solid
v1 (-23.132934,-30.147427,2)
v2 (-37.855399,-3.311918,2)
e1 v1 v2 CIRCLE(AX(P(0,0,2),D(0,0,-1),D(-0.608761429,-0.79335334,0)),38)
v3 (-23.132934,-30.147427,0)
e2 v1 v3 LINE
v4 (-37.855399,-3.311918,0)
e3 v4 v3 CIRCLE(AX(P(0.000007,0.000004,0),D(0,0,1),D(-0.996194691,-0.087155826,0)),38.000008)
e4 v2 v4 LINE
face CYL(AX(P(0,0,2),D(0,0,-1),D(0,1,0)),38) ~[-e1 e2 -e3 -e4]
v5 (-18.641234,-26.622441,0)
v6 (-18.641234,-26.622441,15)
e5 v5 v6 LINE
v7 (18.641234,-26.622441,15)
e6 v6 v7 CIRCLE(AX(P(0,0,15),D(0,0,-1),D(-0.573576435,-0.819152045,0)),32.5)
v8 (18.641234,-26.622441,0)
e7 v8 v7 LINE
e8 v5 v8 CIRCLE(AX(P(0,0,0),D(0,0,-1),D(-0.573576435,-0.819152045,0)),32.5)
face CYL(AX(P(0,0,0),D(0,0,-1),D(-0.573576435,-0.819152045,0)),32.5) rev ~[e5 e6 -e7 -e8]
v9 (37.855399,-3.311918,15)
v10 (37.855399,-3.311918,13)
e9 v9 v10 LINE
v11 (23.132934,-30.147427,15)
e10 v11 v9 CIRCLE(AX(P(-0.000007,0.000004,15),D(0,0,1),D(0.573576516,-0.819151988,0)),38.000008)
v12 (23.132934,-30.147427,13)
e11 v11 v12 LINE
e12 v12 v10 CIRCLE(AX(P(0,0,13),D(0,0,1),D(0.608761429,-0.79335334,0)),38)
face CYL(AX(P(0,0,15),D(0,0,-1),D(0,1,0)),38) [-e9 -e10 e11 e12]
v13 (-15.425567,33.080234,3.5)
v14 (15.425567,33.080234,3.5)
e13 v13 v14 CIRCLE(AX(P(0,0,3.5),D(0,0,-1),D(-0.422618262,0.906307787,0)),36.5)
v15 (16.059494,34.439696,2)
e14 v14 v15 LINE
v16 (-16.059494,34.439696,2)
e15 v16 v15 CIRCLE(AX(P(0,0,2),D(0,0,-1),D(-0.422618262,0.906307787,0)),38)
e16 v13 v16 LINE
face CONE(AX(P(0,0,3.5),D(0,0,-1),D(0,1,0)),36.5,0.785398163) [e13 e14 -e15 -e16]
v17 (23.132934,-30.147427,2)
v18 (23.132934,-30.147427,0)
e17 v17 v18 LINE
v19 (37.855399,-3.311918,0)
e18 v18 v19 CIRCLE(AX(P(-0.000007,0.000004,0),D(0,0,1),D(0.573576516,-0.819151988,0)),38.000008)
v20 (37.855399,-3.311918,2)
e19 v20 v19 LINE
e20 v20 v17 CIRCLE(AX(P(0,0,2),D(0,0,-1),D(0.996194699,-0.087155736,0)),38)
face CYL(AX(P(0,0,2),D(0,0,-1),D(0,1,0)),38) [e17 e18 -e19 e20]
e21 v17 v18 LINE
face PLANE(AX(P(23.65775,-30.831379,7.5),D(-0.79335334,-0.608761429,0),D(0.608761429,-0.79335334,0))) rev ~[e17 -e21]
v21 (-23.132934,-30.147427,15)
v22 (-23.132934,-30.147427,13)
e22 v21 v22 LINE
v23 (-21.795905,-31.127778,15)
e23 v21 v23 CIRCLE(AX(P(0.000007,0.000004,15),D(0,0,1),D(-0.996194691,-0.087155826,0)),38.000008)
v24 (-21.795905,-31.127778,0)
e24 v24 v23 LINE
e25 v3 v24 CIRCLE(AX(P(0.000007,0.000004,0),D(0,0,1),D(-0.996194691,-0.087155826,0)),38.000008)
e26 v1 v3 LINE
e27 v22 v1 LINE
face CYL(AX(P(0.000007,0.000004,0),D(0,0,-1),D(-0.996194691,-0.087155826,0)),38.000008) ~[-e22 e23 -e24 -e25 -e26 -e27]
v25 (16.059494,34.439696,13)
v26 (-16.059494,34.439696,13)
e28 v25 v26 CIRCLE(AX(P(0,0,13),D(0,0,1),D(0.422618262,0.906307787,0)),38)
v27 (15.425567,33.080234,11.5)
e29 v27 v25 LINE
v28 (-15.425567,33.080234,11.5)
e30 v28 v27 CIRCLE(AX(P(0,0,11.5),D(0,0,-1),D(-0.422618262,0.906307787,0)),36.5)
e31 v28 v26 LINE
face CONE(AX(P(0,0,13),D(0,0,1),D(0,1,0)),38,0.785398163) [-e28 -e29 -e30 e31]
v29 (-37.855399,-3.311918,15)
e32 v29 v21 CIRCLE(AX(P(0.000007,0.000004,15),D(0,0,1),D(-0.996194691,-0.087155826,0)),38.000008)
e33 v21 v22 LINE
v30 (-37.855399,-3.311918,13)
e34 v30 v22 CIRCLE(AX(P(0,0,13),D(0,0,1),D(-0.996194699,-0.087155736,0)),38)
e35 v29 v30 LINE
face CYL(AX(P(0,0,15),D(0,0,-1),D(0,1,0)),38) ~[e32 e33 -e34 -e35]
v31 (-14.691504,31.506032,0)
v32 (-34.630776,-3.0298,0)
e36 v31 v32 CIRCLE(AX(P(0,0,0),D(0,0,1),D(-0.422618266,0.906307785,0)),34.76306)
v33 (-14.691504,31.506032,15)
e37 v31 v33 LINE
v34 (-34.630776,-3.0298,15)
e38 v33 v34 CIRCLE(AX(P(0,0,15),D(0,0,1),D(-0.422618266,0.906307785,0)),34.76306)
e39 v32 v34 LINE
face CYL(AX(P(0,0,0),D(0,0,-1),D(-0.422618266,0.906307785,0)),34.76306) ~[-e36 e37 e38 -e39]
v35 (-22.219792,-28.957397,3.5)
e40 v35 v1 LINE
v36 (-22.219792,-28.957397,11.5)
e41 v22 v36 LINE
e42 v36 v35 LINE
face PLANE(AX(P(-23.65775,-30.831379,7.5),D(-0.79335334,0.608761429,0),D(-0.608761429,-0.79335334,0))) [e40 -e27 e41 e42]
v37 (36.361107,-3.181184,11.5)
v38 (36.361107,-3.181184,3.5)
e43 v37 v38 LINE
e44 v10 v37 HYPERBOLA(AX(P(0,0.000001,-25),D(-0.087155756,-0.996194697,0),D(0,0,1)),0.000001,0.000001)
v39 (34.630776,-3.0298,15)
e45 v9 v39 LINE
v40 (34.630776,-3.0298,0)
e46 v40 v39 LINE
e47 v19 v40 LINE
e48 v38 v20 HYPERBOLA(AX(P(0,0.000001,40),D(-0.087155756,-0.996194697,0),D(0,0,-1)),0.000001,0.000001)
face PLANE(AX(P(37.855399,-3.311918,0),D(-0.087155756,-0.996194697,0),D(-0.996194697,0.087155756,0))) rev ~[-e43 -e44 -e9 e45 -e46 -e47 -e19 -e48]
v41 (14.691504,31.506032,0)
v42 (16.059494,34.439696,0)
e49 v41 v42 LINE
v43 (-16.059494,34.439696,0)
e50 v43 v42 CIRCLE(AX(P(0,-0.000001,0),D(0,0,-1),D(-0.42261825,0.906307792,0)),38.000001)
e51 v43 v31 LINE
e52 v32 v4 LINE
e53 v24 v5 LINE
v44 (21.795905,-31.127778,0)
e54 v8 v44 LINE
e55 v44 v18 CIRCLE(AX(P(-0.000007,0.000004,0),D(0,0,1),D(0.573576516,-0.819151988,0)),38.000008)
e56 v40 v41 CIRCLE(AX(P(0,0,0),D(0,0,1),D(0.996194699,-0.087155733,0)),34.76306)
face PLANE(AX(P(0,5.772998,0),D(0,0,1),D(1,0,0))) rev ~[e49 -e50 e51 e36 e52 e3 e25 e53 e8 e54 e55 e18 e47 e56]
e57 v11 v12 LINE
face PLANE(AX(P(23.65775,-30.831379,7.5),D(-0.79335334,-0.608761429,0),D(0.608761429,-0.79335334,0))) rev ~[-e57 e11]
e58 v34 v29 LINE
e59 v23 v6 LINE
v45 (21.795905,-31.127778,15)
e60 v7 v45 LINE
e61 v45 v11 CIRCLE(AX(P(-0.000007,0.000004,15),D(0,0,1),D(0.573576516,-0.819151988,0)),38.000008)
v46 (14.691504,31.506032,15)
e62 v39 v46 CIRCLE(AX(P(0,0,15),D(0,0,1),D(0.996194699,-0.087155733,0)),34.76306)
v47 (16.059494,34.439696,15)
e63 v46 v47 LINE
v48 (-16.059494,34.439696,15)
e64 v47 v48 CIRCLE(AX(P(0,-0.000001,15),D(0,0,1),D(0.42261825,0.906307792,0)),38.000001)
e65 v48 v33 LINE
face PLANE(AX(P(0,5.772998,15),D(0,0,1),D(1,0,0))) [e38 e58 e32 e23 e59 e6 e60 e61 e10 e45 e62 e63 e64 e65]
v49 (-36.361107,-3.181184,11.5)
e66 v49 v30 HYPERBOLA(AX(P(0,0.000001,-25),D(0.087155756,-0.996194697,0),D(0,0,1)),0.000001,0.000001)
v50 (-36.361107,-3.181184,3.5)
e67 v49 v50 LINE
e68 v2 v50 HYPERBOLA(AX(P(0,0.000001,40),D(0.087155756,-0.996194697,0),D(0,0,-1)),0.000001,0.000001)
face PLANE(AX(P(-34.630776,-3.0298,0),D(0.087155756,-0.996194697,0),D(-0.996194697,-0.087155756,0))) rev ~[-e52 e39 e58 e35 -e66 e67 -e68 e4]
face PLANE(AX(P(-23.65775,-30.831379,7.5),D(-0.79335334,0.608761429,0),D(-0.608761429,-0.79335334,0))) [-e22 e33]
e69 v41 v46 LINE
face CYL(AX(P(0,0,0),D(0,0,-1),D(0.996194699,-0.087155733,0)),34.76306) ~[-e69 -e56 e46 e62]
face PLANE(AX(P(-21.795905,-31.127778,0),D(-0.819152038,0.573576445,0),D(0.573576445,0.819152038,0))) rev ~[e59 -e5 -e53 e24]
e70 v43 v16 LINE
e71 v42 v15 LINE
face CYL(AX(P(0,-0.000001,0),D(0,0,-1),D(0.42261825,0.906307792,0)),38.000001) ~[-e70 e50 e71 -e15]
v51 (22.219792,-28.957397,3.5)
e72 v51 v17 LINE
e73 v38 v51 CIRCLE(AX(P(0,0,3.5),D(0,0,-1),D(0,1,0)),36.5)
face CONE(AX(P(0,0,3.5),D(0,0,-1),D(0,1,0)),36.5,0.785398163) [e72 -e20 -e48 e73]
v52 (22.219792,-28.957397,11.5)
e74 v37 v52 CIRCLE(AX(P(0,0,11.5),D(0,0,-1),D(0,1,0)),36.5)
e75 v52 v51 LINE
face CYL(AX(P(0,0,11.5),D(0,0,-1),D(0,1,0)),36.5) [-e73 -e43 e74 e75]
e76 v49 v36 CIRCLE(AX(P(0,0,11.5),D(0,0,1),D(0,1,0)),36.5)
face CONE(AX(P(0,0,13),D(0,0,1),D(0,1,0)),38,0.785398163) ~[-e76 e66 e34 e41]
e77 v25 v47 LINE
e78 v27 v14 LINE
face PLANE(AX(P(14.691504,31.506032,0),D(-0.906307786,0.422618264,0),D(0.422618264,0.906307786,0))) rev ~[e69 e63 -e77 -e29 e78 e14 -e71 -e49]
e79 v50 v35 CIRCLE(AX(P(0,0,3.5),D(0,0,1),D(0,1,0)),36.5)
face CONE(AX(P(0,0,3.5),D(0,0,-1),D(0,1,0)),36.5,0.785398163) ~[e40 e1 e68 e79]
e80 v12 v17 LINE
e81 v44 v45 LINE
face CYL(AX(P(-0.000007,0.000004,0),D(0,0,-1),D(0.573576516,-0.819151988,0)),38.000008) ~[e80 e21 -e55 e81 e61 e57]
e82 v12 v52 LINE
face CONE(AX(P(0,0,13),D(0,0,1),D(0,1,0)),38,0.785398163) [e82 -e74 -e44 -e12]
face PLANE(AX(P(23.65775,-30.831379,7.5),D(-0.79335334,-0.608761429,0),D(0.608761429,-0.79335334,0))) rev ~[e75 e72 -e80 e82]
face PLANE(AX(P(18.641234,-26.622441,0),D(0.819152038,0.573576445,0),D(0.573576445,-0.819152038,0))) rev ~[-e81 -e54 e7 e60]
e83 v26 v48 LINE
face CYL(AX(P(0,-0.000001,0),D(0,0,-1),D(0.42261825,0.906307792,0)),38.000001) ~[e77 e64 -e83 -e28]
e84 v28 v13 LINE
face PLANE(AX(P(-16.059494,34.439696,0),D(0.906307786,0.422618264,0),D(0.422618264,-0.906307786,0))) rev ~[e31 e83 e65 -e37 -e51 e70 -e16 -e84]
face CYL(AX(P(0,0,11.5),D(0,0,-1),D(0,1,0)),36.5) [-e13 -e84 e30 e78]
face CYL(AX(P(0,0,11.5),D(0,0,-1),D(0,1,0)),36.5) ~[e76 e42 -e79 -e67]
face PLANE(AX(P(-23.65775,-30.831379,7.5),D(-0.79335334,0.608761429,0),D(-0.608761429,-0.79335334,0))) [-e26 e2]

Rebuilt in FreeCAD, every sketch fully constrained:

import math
import FreeCAD as App
import Part
import Sketcher
Q = App.Units.Quantity


def add_polygon(sketch, points):
    """Adds a closed chain of lines whose ends are joined by coincident constraints."""
    first, n = sketch.GeometryCount, len(points)
    for a, b in zip(points, points[1:] + points[:1]):
        sketch.addGeometry(Part.LineSegment(App.Vector(*a, 0), App.Vector(*b, 0)), False)
    for i in range(n):
        sketch.addConstraint(Sketcher.Constraint("Coincident", first + i, 2, first + (i + 1) % n, 1))

doc = App.newDocument("Part")
body = doc.addObject("PartDesign::Body", "Body")

# Sketch on XY plane
sketch1 = doc.addObject("Sketcher::SketchObject", "Sketch")
body.addObject(sketch1)
sketch1.AttachmentSupport = (doc.XY_Plane, [""])
sketch1.MapMode = "FlatFace"
sketch1.addGeometry(Part.LineSegment(App.Vector(18.6, -26.6, 0), App.Vector(21.8, -31.1, 0)), False)
sketch1.addGeometry(Part.ArcOfCircle(Part.Circle(App.Vector(0, 0, 0), App.Vector(0, 0, 1), 38), math.radians(-55), math.radians(-5)), False)
sketch1.addGeometry(Part.LineSegment(App.Vector(37.9, -3.3, 0), App.Vector(34.6, -3, 0)), False)
sketch1.addGeometry(Part.ArcOfCircle(Part.Circle(App.Vector(0, 0, 0), App.Vector(0, 0, 1), 34.8), math.radians(-5), math.radians(65)), False)
sketch1.addGeometry(Part.LineSegment(App.Vector(14.7, 31.5, 0), App.Vector(16.1, 34.4, 0)), False)
sketch1.addGeometry(Part.ArcOfCircle(Part.Circle(App.Vector(0, 0, 0), App.Vector(0, 0, 1), 38), math.radians(65), math.radians(115)), False)
sketch1.addGeometry(Part.LineSegment(App.Vector(-16.1, 34.4, 0), App.Vector(-14.7, 31.5, 0)), False)
sketch1.addGeometry(Part.ArcOfCircle(Part.Circle(App.Vector(0, 0, 0), App.Vector(0, 0, 1), 34.8), math.radians(115), math.radians(185)), False)
sketch1.addGeometry(Part.LineSegment(App.Vector(-34.6, -3, 0), App.Vector(-37.9, -3.3, 0)), False)
sketch1.addGeometry(Part.ArcOfCircle(Part.Circle(App.Vector(0, 0, 0), App.Vector(0, 0, 1), 38), math.radians(-175), math.radians(-125)), False)
sketch1.addGeometry(Part.LineSegment(App.Vector(-21.8, -31.1, 0), App.Vector(-18.6, -26.6, 0)), False)
sketch1.addGeometry(Part.ArcOfCircle(Part.Circle(App.Vector(0, 0, 0), App.Vector(0, 0, 1), 32.5), math.radians(-55), math.radians(235)), False)
sketch1.addConstraint(Sketcher.Constraint("Coincident", 0, 2, 1, 1))
sketch1.addConstraint(Sketcher.Constraint("Coincident", 1, 2, 2, 1))
sketch1.addConstraint(Sketcher.Constraint("Coincident", 2, 2, 3, 1))
sketch1.addConstraint(Sketcher.Constraint("Coincident", 3, 2, 4, 1))
sketch1.addConstraint(Sketcher.Constraint("Coincident", 4, 2, 5, 1))
sketch1.addConstraint(Sketcher.Constraint("Coincident", 5, 2, 6, 1))
sketch1.addConstraint(Sketcher.Constraint("Coincident", 6, 2, 7, 1))
sketch1.addConstraint(Sketcher.Constraint("Coincident", 7, 2, 8, 1))
sketch1.addConstraint(Sketcher.Constraint("Coincident", 8, 2, 9, 1))
sketch1.addConstraint(Sketcher.Constraint("Coincident", 9, 2, 10, 1))
sketch1.addConstraint(Sketcher.Constraint("Coincident", 10, 2, 11, 2))
sketch1.addConstraint(Sketcher.Constraint("Coincident", 11, 1, 0, 1))
sketch1.addConstraint(Sketcher.Constraint("Coincident", 1, 3, -1, 1))
sketch1.addConstraint(Sketcher.Constraint("Coincident", 3, 3, -1, 1))
sketch1.addConstraint(Sketcher.Constraint("Coincident", 5, 3, -1, 1))
sketch1.addConstraint(Sketcher.Constraint("Coincident", 7, 3, -1, 1))
sketch1.addConstraint(Sketcher.Constraint("Coincident", 9, 3, -1, 1))
sketch1.addConstraint(Sketcher.Constraint("Coincident", 11, 3, -1, 1))
sketch1.addConstraint(Sketcher.Constraint("Equal", 3, 7))
sketch1.addConstraint(Sketcher.Constraint("Equal", 1, 9))
sketch1.addConstraint(Sketcher.Constraint("Horizontal", 4, 2, 5, 2))
sketch1.addConstraint(Sketcher.Constraint("Horizontal", 3, 2, 6, 2))
sketch1.addConstraint(Sketcher.Constraint("Horizontal", 2, 2, 7, 2))
sketch1.addConstraint(Sketcher.Constraint("Horizontal", 1, 2, 8, 2))
sketch1.addConstraint(Sketcher.Constraint("Horizontal", 0, 2, 9, 2))
sketch1.addConstraint(Sketcher.Constraint("Horizontal", 10, 2, 11, 1))
sketch1.addConstraint(Sketcher.Constraint("Equal", 2, 4))
sketch1.addConstraint(Sketcher.Constraint("Radius", 5, 38.000001))
sketch1.addConstraint(Sketcher.Constraint("Radius", 11, 32.5))
sketch1.addConstraint(Sketcher.Constraint("Angle", 0, Q("-54.999999 deg")))
sketch1.addConstraint(Sketcher.Constraint("Angle", 2, Q("174.999999 deg")))
sketch1.addConstraint(Sketcher.Constraint("Angle", 4, Q("65 deg")))
sketch1.addConstraint(Sketcher.Constraint("Radius", 3, 34.76306))
sketch1.addConstraint(Sketcher.Constraint("DistanceX", 6, 2, 4, 2, 30.750998))
sketch1.addConstraint(Sketcher.Constraint("DistanceX", -1, 1, 1, 2, 37.855399))
sketch1.addConstraint(Sketcher.Constraint("DistanceY", 10, 2, -1, 1, 26.622441))
pad1 = doc.addObject("PartDesign::Pad", "Pad")
body.addObject(pad1)
pad1.Profile = sketch1
pad1.Length = 15

# Sketch on YZ plane
sketch2 = doc.addObject("Sketcher::SketchObject", "Sketch001")
body.addObject(sketch2)
sketch2.AttachmentSupport = (doc.YZ_Plane, [""])
sketch2.MapMode = "FlatFace"
add_polygon(sketch2, [(38, 13), (36.5, 11.5), (36.5, 3.5), (38, 2), (38, 0), (40.6, 0), (40.6, 15), (38, 15)])  # lines 0-7
sketch2.addConstraint(Sketcher.Constraint("Vertical", 1))
sketch2.addConstraint(Sketcher.Constraint("Vertical", 3))
sketch2.addConstraint(Sketcher.Constraint("Horizontal", 4))
sketch2.addConstraint(Sketcher.Constraint("Vertical", 5))
sketch2.addConstraint(Sketcher.Constraint("Horizontal", 6))
sketch2.addConstraint(Sketcher.Constraint("Vertical", 7))
sketch2.addConstraint(Sketcher.Constraint("PointOnObject", 3, 2, -1))
sketch2.addConstraint(Sketcher.Constraint("Perpendicular", 0, 2))
sketch2.addConstraint(Sketcher.Constraint("Vertical", 3, 2, 6, 2))
sketch2.addConstraint(Sketcher.Constraint("Equal", 3, 7))
sketch2.addConstraint(Sketcher.Constraint("Equal", 0, 2))
sketch2.addConstraint(Sketcher.Constraint("DistanceY", 1, 2, 1, 1, 8.0))
sketch2.addConstraint(Sketcher.Constraint("DistanceY", 3, 2, 3, 1, 2.0))
sketch2.addConstraint(Sketcher.Constraint("DistanceY", 5, 1, 5, 2, 15.0))
sketch2.addConstraint(Sketcher.Constraint("DistanceX", -1, 1, 2, 2, 38.0))
sketch2.addConstraint(Sketcher.Constraint("DistanceX", 4, 1, 4, 2, 2.645316))
groove = doc.addObject("PartDesign::Groove", "Groove")
body.addObject(groove)
groove.Profile = sketch2
groove.ReferenceAxis = (sketch2, ["V_Axis"])
groove.Angle = 142.5
groove.Reversed = True

# Sketch on YZ plane
sketch3 = doc.addObject("Sketcher::SketchObject", "Sketch002")
body.addObject(sketch3)
sketch3.AttachmentSupport = (doc.YZ_Plane, [""])
sketch3.MapMode = "FlatFace"
add_polygon(sketch3, [(38, 13), (36.5, 11.5), (36.5, 3.5), (38, 2), (38, 0), (40.6, 0), (40.6, 15), (38, 15)])  # lines 0-7
sketch3.addConstraint(Sketcher.Constraint("Vertical", 1))
sketch3.addConstraint(Sketcher.Constraint("Vertical", 3))
sketch3.addConstraint(Sketcher.Constraint("Horizontal", 4))
sketch3.addConstraint(Sketcher.Constraint("Vertical", 5))
sketch3.addConstraint(Sketcher.Constraint("Horizontal", 6))
sketch3.addConstraint(Sketcher.Constraint("Vertical", 7))
sketch3.addConstraint(Sketcher.Constraint("PointOnObject", 3, 2, -1))
sketch3.addConstraint(Sketcher.Constraint("Perpendicular", 0, 2))
sketch3.addConstraint(Sketcher.Constraint("Vertical", 3, 2, 6, 2))
sketch3.addConstraint(Sketcher.Constraint("Equal", 3, 7))
sketch3.addConstraint(Sketcher.Constraint("Equal", 0, 2))
sketch3.addConstraint(Sketcher.Constraint("DistanceY", 1, 2, 1, 1, 8.0))
sketch3.addConstraint(Sketcher.Constraint("DistanceY", 3, 2, 3, 1, 2.0))
sketch3.addConstraint(Sketcher.Constraint("DistanceY", 5, 1, 5, 2, 15.0))
sketch3.addConstraint(Sketcher.Constraint("DistanceX", -1, 1, 2, 2, 38.0))
sketch3.addConstraint(Sketcher.Constraint("DistanceX", 4, 1, 4, 2, 2.645316))
groove2 = doc.addObject("PartDesign::Groove", "Groove001")
body.addObject(groove2)
groove2.Profile = sketch3
groove2.ReferenceAxis = (sketch3, ["V_Axis"])
groove2.Angle = 142.5

doc.recompute()
